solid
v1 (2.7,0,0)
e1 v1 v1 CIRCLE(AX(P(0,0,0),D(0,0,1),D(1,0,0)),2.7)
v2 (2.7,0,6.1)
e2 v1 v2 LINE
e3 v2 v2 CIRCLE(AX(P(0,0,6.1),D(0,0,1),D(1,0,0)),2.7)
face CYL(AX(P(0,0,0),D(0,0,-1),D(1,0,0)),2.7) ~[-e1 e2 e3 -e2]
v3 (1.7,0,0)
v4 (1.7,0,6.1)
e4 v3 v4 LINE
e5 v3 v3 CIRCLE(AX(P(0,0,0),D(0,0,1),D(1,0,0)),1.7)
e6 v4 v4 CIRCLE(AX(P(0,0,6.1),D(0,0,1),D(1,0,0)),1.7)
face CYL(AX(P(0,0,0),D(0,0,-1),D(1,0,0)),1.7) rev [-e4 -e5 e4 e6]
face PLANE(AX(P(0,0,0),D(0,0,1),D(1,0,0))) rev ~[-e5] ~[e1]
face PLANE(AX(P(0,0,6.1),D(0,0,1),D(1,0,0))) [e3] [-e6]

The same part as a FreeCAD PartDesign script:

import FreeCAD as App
import Part
import Sketcher

V = App.Vector

doc = App.newDocument("Part")
body = doc.addObject("PartDesign::Body", "Body")

sketch1 = body.newObject("Sketcher::SketchObject", "Sketch")
sketch1.AttachmentSupport = (doc.getObject("XY_Plane"), [""])
sketch1.MapMode = "FlatFace"
sketch1.addGeometry(Part.Circle(V(0, 0, 0), V(0, 0, 1), 2.7), False)
sketch1.addGeometry(Part.Circle(V(0, 0, 0), V(0, 0, 1), 1.7), False)
sketch1.addConstraint(Sketcher.Constraint("Coincident", 0, 3, -1, 1))
sketch1.addConstraint(Sketcher.Constraint("Coincident", 1, 3, -1, 1))
sketch1.addConstraint(Sketcher.Constraint("Diameter", 1, 3.4))
sketch1.addConstraint(Sketcher.Constraint("Diameter", 0, 5.4))
pad1 = body.newObject("PartDesign::Pad", "Pad")
pad1.Profile = sketch1
pad1.Length = 6.1

doc.recompute()
